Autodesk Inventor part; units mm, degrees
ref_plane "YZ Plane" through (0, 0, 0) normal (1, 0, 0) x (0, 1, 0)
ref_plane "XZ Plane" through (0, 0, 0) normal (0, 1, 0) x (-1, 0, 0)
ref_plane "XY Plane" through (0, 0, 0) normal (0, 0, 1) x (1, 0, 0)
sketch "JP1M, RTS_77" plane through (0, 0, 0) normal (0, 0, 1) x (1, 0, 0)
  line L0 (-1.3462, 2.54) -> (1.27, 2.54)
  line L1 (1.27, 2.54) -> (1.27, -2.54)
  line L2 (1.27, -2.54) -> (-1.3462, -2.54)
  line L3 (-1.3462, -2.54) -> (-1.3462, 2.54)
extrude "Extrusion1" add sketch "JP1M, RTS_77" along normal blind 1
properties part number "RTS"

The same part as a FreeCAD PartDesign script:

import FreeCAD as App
import Part
import Sketcher

V = App.Vector
Q = App.Units.Quantity

doc = App.newDocument("Part")
body = doc.addObject("PartDesign::Body", "Body")

# Sketch on XY plane
sketch1 = body.newObject("Sketcher::SketchObject", "Sketch")
sketch1.AttachmentSupport = (doc.getObject("XY_Plane"), [""])
sketch1.MapMode = "FlatFace"
sketch1.addGeometry([
    Part.LineSegment(V(1.3, 2.5, 0), V(-1.3, 2.5, 0)),
    Part.LineSegment(V(-1.3, 2.5, 0), V(-1.3, -2.5, 0)),
    Part.LineSegment(V(-1.3, -2.5, 0), V(1.3, -2.5, 0)),
    Part.LineSegment(V(1.3, -2.5, 0), V(1.3, 2.5, 0)),
], False)
sketch1.addConstraint([
    Sketcher.Constraint("Coincident", 0, 2, 1, 1),
    Sketcher.Constraint("Coincident", 1, 2, 2, 1),
    Sketcher.Constraint("Coincident", 2, 2, 3, 1),
    Sketcher.Constraint("Coincident", 3, 2, 0, 1),
    Sketcher.Constraint("Horizontal", 0),
    Sketcher.Constraint("Vertical", 1),
    Sketcher.Constraint("Horizontal", 2),
    Sketcher.Constraint("Vertical", 3),
    Sketcher.Constraint("DistanceY", 1, 2, 1, 1, Q("0.2 in")),
    Sketcher.Constraint("DistanceY", -1, 1, 0, 2, Q("0.1 in")),
    Sketcher.Constraint("DistanceX", 0, 2, 0, 1, Q("0.103 in")),
    Sketcher.Constraint("DistanceX", -1, 1, 2, 2, Q("0.05 in")),
])
pad1 = body.newObject("PartDesign::Pad", "Pad")
pad1.Profile = sketch1
pad1.Length = 1

doc.recompute()
